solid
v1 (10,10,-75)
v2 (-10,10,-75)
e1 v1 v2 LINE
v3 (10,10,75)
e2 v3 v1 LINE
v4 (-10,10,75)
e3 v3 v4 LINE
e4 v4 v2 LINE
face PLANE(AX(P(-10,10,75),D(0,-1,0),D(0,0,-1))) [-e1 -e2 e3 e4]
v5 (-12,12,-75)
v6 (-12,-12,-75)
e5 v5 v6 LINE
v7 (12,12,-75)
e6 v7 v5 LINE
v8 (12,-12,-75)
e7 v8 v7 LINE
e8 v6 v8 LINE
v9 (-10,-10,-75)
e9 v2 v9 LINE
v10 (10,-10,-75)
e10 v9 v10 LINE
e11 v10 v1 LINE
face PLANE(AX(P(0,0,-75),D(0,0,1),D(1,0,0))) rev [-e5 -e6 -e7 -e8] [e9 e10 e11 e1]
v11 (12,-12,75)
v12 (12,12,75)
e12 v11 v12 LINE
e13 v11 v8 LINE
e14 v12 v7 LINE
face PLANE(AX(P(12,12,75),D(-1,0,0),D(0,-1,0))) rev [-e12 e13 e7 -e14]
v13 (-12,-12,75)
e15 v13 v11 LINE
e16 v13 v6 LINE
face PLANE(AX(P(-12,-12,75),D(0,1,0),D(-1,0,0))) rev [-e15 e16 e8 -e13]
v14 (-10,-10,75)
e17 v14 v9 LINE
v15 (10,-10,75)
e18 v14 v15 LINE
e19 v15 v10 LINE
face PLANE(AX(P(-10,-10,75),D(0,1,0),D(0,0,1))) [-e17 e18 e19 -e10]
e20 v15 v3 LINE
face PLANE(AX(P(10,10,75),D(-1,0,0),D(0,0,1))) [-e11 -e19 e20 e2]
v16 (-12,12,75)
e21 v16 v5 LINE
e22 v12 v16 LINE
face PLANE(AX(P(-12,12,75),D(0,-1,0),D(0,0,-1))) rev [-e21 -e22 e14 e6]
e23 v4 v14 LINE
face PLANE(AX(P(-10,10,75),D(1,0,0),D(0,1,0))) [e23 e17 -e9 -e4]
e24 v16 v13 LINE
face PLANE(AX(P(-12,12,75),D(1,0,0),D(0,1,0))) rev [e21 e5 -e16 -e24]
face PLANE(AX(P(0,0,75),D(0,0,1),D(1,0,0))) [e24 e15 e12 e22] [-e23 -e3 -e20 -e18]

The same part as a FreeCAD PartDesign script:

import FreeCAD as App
import Part
import Sketcher
from FreeCAD import Vector

doc = App.newDocument("Part")
body = doc.addObject("PartDesign::Body", "Body")

# Sketch on XY plane
sketch1 = body.newObject("Sketcher::SketchObject", "Sketch")
sketch1.AttachmentSupport = (doc.getObject("XY_Plane"), [""])
sketch1.MapMode = "FlatFace"
sketch1.addGeometry([
    Part.LineSegment(Vector(-12, 12, 0), Vector(-12, -12, 0)),  # 0
    Part.LineSegment(Vector(-12, -12, 0), Vector(12, -12, 0)),  # 1
    Part.LineSegment(Vector(12, -12, 0), Vector(12, 12, 0)),  # 2
    Part.LineSegment(Vector(12, 12, 0), Vector(-12, 12, 0)),  # 3
    Part.LineSegment(Vector(10, -10, 0), Vector(-10, -10, 0)),  # 4
    Part.LineSegment(Vector(-10, -10, 0), Vector(-10, 10, 0)),  # 5
    Part.LineSegment(Vector(-10, 10, 0), Vector(10, 10, 0)),  # 6
    Part.LineSegment(Vector(10, 10, 0), Vector(10, -10, 0)),  # 7
], False)
sketch1.addConstraint([
    Sketcher.Constraint("Coincident", 0, 2, 1, 1),
    Sketcher.Constraint("Coincident", 1, 2, 2, 1),
    Sketcher.Constraint("Coincident", 2, 2, 3, 1),
    Sketcher.Constraint("Coincident", 3, 2, 0, 1),
    Sketcher.Constraint("Coincident", 4, 2, 5, 1),
    Sketcher.Constraint("Coincident", 5, 2, 6, 1),
    Sketcher.Constraint("Coincident", 6, 2, 7, 1),
    Sketcher.Constraint("Coincident", 7, 2, 4, 1),
    Sketcher.Constraint("Vertical", 0),
    Sketcher.Constraint("Horizontal", 1),
    Sketcher.Constraint("Vertical", 2),
    Sketcher.Constraint("Horizontal", 3),
    Sketcher.Constraint("Horizontal", 4),
    Sketcher.Constraint("Vertical", 5),
    Sketcher.Constraint("Horizontal", 6),
    Sketcher.Constraint("Vertical", 7),
    Sketcher.Constraint("Symmetric", 0, 2, 2, 2, -1, 1),
    Sketcher.Constraint("Symmetric", 4, 2, 6, 2, -1, 1),
    Sketcher.Constraint("Equal", 3, 0),
    Sketcher.Constraint("Equal", 6, 5),
    Sketcher.Constraint("DistanceX", 1, 1, 1, 2, 24.0),
    Sketcher.Constraint("DistanceX", 4, 2, 4, 1, 20.0),
])
pad1 = body.newObject("PartDesign::Pad", "Pad")
pad1.Profile = sketch1
pad1.Length = 150
pad1.Midplane = True

doc.recompute()
